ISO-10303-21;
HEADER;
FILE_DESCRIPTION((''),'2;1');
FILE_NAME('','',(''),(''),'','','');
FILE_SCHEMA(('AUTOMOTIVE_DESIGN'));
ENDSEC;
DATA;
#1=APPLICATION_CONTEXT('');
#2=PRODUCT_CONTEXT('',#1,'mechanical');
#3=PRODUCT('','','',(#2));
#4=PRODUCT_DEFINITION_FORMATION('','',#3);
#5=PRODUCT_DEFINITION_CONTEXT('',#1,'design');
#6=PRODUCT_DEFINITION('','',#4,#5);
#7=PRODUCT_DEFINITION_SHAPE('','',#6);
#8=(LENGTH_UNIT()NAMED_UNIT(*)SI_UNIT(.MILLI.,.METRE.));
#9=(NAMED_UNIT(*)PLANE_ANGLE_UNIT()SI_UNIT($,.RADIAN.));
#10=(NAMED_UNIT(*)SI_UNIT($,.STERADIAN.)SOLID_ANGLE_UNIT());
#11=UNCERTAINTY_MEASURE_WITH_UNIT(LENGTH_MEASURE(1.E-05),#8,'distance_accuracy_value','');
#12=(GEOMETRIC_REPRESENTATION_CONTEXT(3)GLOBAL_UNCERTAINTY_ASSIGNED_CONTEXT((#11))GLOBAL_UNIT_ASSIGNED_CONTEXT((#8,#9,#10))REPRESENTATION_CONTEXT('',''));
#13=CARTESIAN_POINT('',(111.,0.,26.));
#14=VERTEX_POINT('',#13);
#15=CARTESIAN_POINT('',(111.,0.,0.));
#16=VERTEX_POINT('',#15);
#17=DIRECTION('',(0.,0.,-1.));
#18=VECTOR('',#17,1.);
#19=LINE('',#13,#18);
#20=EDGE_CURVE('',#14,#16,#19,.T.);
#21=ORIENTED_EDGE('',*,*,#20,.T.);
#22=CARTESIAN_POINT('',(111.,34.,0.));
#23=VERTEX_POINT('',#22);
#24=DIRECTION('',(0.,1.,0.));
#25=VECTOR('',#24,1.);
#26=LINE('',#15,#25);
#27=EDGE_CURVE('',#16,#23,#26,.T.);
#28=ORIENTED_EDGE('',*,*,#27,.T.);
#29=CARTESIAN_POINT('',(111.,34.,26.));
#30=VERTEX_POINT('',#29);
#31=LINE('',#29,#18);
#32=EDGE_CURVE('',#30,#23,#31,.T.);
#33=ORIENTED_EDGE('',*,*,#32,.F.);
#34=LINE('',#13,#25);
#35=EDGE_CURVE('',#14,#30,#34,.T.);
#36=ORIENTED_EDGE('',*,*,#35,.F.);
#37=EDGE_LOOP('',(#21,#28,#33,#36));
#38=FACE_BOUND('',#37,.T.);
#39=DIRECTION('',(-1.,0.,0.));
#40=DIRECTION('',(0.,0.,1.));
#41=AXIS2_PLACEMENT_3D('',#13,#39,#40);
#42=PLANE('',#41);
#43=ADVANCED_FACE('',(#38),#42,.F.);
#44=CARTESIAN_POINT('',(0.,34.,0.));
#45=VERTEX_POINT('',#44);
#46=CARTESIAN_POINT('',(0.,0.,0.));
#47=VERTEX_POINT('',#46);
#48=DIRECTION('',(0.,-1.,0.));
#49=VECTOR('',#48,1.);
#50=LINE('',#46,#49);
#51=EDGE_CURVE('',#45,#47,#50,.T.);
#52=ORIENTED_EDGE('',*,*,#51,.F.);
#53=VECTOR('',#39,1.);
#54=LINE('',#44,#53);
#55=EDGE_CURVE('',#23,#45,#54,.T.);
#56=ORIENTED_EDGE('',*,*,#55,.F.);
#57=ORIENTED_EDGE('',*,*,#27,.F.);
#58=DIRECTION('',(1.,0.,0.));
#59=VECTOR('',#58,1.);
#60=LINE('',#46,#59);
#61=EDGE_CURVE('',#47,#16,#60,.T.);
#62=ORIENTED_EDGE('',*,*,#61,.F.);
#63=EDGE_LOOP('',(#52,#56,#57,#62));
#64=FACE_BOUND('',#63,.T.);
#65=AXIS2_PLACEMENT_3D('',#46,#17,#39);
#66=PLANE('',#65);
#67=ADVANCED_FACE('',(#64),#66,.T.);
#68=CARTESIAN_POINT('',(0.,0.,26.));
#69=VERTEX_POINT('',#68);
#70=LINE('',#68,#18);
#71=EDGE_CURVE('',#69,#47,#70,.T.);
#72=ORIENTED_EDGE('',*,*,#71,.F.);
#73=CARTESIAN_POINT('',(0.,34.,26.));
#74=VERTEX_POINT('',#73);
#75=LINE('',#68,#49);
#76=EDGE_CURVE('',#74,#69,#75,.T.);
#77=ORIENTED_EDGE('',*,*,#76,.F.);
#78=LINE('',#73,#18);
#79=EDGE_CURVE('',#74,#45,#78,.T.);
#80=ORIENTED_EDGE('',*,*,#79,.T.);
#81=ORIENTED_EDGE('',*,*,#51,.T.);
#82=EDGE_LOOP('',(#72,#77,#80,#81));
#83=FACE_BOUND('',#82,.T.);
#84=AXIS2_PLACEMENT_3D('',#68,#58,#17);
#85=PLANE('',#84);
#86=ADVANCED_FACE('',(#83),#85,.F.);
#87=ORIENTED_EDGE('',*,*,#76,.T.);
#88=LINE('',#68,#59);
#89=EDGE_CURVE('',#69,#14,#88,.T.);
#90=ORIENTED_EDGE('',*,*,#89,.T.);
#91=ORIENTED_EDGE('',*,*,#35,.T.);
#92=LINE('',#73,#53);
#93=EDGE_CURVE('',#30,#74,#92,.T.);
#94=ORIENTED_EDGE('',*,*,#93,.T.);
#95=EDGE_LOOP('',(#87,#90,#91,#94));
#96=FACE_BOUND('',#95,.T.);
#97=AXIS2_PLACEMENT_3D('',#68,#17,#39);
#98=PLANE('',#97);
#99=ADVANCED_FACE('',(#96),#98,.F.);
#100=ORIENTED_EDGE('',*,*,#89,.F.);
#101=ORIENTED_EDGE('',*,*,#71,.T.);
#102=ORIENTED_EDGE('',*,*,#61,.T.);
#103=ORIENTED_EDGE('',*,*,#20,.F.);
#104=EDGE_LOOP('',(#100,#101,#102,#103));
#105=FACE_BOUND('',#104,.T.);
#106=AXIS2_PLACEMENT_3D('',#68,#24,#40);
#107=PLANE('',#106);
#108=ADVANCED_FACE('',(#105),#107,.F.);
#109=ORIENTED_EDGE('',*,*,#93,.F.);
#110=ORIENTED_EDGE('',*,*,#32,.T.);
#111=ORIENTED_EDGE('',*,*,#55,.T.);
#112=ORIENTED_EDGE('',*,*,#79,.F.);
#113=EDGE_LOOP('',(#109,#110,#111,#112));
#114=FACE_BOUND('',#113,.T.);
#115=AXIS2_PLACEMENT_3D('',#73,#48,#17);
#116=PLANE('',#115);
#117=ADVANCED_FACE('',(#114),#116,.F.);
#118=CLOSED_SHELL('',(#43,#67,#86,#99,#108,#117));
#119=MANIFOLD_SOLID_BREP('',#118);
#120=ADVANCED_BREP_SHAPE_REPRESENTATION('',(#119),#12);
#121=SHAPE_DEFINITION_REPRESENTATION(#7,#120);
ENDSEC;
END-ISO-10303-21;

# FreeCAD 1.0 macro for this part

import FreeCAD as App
import Part
import Sketcher


def add_polygon(sketch, points):
    """Adds a closed chain of lines whose ends are joined by coincident constraints."""
    first, n = sketch.GeometryCount, len(points)
    for a, b in zip(points, points[1:] + points[:1]):
        sketch.addGeometry(Part.LineSegment(App.Vector(*a, 0), App.Vector(*b, 0)), False)
    for i in range(n):
        sketch.addConstraint(Sketcher.Constraint("Coincident", first + i, 2, first + (i + 1) % n, 1))

doc = App.newDocument("Part")
body = doc.addObject("PartDesign::Body", "Body")

sketch1 = doc.addObject("Sketcher::SketchObject", "Sketch")
body.addObject(sketch1)
sketch1.AttachmentSupport = (doc.XY_Plane, [""])
sketch1.MapMode = "FlatFace"
add_polygon(sketch1, [(0, 34), (0, 0), (111, 0), (111, 34)])
sketch1.addConstraint(Sketcher.Constraint("Vertical", 0))
sketch1.addConstraint(Sketcher.Constraint("Horizontal", 1))
sketch1.addConstraint(Sketcher.Constraint("Vertical", 2))
sketch1.addConstraint(Sketcher.Constraint("Horizontal", 3))
sketch1.addConstraint(Sketcher.Constraint("Coincident", 0, 2, -1, 1))
sketch1.addConstraint(Sketcher.Constraint("DistanceX", 1, 1, 1, 2, 111.0))
sketch1.addConstraint(Sketcher.Constraint("DistanceY", 0, 2, 0, 1, 34.0))
pad1 = doc.addObject("PartDesign::Pad", "Pad")
body.addObject(pad1)
pad1.Profile = sketch1
pad1.Length = 26

doc.recompute()
